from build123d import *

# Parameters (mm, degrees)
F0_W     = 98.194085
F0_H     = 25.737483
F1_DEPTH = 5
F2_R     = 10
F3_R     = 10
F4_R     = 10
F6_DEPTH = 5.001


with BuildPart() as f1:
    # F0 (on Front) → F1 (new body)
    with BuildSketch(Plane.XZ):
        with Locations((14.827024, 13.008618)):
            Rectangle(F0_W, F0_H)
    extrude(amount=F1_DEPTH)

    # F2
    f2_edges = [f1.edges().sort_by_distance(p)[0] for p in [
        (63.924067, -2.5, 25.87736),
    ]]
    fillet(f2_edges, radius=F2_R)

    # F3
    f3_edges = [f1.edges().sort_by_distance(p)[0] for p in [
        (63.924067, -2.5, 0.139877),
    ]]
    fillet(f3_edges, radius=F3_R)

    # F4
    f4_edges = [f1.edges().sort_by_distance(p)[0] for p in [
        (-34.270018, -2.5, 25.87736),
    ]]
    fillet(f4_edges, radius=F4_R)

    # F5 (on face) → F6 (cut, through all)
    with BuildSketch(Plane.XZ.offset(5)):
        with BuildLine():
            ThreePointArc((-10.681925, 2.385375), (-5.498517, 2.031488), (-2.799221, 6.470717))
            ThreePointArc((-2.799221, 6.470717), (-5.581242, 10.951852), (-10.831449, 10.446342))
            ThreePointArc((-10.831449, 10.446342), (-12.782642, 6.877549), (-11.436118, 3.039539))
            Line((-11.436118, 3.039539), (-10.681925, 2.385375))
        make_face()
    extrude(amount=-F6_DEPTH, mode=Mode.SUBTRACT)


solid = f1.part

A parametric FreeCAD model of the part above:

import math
import FreeCAD as App
import Part
import Sketcher

V = App.Vector


def edges_at(feature, points):
    """Names of the edges that pass closest to the given points."""
    edges = feature.Shape.Edges
    near = lambda p: min(range(len(edges)), key=lambda i: edges[i].distToShape(Part.Vertex(*p))[0])
    return sorted({f"Edge{near(p) + 1}" for p in points})


def add_polygon(sketch, points):
    """Adds a closed chain of lines whose ends are joined by coincident constraints."""
    first, n = sketch.GeometryCount, len(points)
    for a, b in zip(points, points[1:] + points[:1]):
        sketch.addGeometry(Part.LineSegment(App.Vector(*a, 0), App.Vector(*b, 0)), False)
    for i in range(n):
        sketch.addConstraint(Sketcher.Constraint("Coincident", first + i, 2, first + (i + 1) % n, 1))

doc = App.newDocument("Part")
params = doc.addObject("Spreadsheet::Sheet", "Params")
for row, (alias, value) in enumerate([
    ("pad1_length", "5 mm"),
    ("fillet_radius", "10 mm"),
    ("fillet2_radius", "10 mm"),
    ("fillet3_radius", "10 mm"),
    ("sketch2_radius", "5.000001 mm"),
], start=1):
    params.set(f"A{row}", alias)
    params.set(f"B{row}", "=" + value)
    params.setAlias(f"B{row}", alias)

body = doc.addObject("PartDesign::Body", "Body")

# Sketch on XZ plane
sketch1 = doc.addObject("Sketcher::SketchObject", "Sketch")
body.addObject(sketch1)
sketch1.AttachmentSupport = (doc.XZ_Plane, [""])
sketch1.MapMode = "FlatFace"
add_polygon(sketch1, [(-34.270018, 25.87736), (-34.270018, 0.139876), (63.924067, 0.139876), (63.924067, 25.87736)])  # lines 0-3
sketch1.addConstraint([
    Sketcher.Constraint("Vertical", 0),
    Sketcher.Constraint("Horizontal", 1),
    Sketcher.Constraint("Vertical", 2),
    Sketcher.Constraint("Horizontal", 3),
    Sketcher.Constraint("DistanceX", 1, 1, 1, 2, 98.194085),
    Sketcher.Constraint("DistanceY", 0, 2, 0, 1, 25.737483),
    Sketcher.Constraint("DistanceX", 0, 2, -1, 1, 34.270018),
    Sketcher.Constraint("DistanceY", -1, 1, 2, 2, 25.87736),
])
pad1 = doc.addObject("PartDesign::Pad", "Pad")
body.addObject(pad1)
pad1.Profile = sketch1
pad1.setExpression("Length", "Params.pad1_length")
doc.recompute()

fillet = doc.addObject("PartDesign::Fillet", "Fillet")
body.addObject(fillet)
fillet.Base = (pad1, edges_at(pad1, [(63.924, -2.5, 25.877)]))
fillet.setExpression("Radius", "Params.fillet_radius")
doc.recompute()

fillet2 = doc.addObject("PartDesign::Fillet", "Fillet001")
body.addObject(fillet2)
fillet2.Base = (fillet, edges_at(fillet, [(63.924, -2.5, 0.14)]))
fillet2.setExpression("Radius", "Params.fillet2_radius")
doc.recompute()

fillet3 = doc.addObject("PartDesign::Fillet", "Fillet002")
body.addObject(fillet3)
fillet3.Base = (fillet2, edges_at(fillet2, [(-34.27, -2.5, 25.877)]))
fillet3.setExpression("Radius", "Params.fillet3_radius")

# Sketch on XZ plane
sketch2 = doc.addObject("Sketcher::SketchObject", "Sketch001")
body.addObject(sketch2)
sketch2.AttachmentSupport = (doc.XZ_Plane, [""])
sketch2.MapMode = "FlatFace"
sketch2.AttachmentOffset = App.Placement(V(0, 0, 5), App.Rotation())
sketch2.addGeometry([
    Part.ArcOfCircle(Part.Circle(V(-7.799222, 6.470718, 0), V(0, 0, 1), 5.000001), math.radians(-125.20759), math.radians(-0.000014)),
    Part.ArcOfCircle(Part.Circle(V(-7.799221, 6.470717, 0), V(0, 0, 1), 5), math.radians(-0.000003), math.radians(127.33294)),
    Part.ArcOfCircle(Part.Circle(V(-7.79922, 6.470717, 0), V(0, 0, 1), 5.000001), math.radians(127.332948), math.radians(223.332843)),
    Part.LineSegment(V(-11.436118, 3.039539, 0), V(-10.681925, 2.385375, 0)),
], False)
sketch2.addConstraint([
    Sketcher.Constraint("Tangent", 0, 2, 1, 1),
    Sketcher.Constraint("Tangent", 1, 2, 2, 1),
    Sketcher.Constraint("Coincident", 2, 2, 3, 1),
    Sketcher.Constraint("Coincident", 3, 2, 0, 1),
    Sketcher.Constraint("Coincident", 2, 3, 0, 3),
    Sketcher.Constraint("Horizontal", 2, 3, 0, 2),
    Sketcher.Constraint("Radius", 0, 5.000001),
    Sketcher.Constraint("DistanceX", 2, 2, 2, 3, 3.636898),
    Sketcher.Constraint("DistanceX", 0, 3, -1, 1, 7.799222),
    Sketcher.Constraint("DistanceY", -1, 1, 0, 3, 6.470718),
    Sketcher.Constraint("DistanceX", 1, 2, -1, 1, 10.831449),
    Sketcher.Constraint("DistanceY", 3, 2, 2, 3, 4.085342),
])
sketch2.setExpression("Constraints[6]", "Params.sketch2_radius")
pocket1 = doc.addObject("PartDesign::Pocket", "Pocket")
body.addObject(pocket1)
pocket1.Profile = sketch2
pocket1.Type = "ThroughAll"

doc.recompute()
